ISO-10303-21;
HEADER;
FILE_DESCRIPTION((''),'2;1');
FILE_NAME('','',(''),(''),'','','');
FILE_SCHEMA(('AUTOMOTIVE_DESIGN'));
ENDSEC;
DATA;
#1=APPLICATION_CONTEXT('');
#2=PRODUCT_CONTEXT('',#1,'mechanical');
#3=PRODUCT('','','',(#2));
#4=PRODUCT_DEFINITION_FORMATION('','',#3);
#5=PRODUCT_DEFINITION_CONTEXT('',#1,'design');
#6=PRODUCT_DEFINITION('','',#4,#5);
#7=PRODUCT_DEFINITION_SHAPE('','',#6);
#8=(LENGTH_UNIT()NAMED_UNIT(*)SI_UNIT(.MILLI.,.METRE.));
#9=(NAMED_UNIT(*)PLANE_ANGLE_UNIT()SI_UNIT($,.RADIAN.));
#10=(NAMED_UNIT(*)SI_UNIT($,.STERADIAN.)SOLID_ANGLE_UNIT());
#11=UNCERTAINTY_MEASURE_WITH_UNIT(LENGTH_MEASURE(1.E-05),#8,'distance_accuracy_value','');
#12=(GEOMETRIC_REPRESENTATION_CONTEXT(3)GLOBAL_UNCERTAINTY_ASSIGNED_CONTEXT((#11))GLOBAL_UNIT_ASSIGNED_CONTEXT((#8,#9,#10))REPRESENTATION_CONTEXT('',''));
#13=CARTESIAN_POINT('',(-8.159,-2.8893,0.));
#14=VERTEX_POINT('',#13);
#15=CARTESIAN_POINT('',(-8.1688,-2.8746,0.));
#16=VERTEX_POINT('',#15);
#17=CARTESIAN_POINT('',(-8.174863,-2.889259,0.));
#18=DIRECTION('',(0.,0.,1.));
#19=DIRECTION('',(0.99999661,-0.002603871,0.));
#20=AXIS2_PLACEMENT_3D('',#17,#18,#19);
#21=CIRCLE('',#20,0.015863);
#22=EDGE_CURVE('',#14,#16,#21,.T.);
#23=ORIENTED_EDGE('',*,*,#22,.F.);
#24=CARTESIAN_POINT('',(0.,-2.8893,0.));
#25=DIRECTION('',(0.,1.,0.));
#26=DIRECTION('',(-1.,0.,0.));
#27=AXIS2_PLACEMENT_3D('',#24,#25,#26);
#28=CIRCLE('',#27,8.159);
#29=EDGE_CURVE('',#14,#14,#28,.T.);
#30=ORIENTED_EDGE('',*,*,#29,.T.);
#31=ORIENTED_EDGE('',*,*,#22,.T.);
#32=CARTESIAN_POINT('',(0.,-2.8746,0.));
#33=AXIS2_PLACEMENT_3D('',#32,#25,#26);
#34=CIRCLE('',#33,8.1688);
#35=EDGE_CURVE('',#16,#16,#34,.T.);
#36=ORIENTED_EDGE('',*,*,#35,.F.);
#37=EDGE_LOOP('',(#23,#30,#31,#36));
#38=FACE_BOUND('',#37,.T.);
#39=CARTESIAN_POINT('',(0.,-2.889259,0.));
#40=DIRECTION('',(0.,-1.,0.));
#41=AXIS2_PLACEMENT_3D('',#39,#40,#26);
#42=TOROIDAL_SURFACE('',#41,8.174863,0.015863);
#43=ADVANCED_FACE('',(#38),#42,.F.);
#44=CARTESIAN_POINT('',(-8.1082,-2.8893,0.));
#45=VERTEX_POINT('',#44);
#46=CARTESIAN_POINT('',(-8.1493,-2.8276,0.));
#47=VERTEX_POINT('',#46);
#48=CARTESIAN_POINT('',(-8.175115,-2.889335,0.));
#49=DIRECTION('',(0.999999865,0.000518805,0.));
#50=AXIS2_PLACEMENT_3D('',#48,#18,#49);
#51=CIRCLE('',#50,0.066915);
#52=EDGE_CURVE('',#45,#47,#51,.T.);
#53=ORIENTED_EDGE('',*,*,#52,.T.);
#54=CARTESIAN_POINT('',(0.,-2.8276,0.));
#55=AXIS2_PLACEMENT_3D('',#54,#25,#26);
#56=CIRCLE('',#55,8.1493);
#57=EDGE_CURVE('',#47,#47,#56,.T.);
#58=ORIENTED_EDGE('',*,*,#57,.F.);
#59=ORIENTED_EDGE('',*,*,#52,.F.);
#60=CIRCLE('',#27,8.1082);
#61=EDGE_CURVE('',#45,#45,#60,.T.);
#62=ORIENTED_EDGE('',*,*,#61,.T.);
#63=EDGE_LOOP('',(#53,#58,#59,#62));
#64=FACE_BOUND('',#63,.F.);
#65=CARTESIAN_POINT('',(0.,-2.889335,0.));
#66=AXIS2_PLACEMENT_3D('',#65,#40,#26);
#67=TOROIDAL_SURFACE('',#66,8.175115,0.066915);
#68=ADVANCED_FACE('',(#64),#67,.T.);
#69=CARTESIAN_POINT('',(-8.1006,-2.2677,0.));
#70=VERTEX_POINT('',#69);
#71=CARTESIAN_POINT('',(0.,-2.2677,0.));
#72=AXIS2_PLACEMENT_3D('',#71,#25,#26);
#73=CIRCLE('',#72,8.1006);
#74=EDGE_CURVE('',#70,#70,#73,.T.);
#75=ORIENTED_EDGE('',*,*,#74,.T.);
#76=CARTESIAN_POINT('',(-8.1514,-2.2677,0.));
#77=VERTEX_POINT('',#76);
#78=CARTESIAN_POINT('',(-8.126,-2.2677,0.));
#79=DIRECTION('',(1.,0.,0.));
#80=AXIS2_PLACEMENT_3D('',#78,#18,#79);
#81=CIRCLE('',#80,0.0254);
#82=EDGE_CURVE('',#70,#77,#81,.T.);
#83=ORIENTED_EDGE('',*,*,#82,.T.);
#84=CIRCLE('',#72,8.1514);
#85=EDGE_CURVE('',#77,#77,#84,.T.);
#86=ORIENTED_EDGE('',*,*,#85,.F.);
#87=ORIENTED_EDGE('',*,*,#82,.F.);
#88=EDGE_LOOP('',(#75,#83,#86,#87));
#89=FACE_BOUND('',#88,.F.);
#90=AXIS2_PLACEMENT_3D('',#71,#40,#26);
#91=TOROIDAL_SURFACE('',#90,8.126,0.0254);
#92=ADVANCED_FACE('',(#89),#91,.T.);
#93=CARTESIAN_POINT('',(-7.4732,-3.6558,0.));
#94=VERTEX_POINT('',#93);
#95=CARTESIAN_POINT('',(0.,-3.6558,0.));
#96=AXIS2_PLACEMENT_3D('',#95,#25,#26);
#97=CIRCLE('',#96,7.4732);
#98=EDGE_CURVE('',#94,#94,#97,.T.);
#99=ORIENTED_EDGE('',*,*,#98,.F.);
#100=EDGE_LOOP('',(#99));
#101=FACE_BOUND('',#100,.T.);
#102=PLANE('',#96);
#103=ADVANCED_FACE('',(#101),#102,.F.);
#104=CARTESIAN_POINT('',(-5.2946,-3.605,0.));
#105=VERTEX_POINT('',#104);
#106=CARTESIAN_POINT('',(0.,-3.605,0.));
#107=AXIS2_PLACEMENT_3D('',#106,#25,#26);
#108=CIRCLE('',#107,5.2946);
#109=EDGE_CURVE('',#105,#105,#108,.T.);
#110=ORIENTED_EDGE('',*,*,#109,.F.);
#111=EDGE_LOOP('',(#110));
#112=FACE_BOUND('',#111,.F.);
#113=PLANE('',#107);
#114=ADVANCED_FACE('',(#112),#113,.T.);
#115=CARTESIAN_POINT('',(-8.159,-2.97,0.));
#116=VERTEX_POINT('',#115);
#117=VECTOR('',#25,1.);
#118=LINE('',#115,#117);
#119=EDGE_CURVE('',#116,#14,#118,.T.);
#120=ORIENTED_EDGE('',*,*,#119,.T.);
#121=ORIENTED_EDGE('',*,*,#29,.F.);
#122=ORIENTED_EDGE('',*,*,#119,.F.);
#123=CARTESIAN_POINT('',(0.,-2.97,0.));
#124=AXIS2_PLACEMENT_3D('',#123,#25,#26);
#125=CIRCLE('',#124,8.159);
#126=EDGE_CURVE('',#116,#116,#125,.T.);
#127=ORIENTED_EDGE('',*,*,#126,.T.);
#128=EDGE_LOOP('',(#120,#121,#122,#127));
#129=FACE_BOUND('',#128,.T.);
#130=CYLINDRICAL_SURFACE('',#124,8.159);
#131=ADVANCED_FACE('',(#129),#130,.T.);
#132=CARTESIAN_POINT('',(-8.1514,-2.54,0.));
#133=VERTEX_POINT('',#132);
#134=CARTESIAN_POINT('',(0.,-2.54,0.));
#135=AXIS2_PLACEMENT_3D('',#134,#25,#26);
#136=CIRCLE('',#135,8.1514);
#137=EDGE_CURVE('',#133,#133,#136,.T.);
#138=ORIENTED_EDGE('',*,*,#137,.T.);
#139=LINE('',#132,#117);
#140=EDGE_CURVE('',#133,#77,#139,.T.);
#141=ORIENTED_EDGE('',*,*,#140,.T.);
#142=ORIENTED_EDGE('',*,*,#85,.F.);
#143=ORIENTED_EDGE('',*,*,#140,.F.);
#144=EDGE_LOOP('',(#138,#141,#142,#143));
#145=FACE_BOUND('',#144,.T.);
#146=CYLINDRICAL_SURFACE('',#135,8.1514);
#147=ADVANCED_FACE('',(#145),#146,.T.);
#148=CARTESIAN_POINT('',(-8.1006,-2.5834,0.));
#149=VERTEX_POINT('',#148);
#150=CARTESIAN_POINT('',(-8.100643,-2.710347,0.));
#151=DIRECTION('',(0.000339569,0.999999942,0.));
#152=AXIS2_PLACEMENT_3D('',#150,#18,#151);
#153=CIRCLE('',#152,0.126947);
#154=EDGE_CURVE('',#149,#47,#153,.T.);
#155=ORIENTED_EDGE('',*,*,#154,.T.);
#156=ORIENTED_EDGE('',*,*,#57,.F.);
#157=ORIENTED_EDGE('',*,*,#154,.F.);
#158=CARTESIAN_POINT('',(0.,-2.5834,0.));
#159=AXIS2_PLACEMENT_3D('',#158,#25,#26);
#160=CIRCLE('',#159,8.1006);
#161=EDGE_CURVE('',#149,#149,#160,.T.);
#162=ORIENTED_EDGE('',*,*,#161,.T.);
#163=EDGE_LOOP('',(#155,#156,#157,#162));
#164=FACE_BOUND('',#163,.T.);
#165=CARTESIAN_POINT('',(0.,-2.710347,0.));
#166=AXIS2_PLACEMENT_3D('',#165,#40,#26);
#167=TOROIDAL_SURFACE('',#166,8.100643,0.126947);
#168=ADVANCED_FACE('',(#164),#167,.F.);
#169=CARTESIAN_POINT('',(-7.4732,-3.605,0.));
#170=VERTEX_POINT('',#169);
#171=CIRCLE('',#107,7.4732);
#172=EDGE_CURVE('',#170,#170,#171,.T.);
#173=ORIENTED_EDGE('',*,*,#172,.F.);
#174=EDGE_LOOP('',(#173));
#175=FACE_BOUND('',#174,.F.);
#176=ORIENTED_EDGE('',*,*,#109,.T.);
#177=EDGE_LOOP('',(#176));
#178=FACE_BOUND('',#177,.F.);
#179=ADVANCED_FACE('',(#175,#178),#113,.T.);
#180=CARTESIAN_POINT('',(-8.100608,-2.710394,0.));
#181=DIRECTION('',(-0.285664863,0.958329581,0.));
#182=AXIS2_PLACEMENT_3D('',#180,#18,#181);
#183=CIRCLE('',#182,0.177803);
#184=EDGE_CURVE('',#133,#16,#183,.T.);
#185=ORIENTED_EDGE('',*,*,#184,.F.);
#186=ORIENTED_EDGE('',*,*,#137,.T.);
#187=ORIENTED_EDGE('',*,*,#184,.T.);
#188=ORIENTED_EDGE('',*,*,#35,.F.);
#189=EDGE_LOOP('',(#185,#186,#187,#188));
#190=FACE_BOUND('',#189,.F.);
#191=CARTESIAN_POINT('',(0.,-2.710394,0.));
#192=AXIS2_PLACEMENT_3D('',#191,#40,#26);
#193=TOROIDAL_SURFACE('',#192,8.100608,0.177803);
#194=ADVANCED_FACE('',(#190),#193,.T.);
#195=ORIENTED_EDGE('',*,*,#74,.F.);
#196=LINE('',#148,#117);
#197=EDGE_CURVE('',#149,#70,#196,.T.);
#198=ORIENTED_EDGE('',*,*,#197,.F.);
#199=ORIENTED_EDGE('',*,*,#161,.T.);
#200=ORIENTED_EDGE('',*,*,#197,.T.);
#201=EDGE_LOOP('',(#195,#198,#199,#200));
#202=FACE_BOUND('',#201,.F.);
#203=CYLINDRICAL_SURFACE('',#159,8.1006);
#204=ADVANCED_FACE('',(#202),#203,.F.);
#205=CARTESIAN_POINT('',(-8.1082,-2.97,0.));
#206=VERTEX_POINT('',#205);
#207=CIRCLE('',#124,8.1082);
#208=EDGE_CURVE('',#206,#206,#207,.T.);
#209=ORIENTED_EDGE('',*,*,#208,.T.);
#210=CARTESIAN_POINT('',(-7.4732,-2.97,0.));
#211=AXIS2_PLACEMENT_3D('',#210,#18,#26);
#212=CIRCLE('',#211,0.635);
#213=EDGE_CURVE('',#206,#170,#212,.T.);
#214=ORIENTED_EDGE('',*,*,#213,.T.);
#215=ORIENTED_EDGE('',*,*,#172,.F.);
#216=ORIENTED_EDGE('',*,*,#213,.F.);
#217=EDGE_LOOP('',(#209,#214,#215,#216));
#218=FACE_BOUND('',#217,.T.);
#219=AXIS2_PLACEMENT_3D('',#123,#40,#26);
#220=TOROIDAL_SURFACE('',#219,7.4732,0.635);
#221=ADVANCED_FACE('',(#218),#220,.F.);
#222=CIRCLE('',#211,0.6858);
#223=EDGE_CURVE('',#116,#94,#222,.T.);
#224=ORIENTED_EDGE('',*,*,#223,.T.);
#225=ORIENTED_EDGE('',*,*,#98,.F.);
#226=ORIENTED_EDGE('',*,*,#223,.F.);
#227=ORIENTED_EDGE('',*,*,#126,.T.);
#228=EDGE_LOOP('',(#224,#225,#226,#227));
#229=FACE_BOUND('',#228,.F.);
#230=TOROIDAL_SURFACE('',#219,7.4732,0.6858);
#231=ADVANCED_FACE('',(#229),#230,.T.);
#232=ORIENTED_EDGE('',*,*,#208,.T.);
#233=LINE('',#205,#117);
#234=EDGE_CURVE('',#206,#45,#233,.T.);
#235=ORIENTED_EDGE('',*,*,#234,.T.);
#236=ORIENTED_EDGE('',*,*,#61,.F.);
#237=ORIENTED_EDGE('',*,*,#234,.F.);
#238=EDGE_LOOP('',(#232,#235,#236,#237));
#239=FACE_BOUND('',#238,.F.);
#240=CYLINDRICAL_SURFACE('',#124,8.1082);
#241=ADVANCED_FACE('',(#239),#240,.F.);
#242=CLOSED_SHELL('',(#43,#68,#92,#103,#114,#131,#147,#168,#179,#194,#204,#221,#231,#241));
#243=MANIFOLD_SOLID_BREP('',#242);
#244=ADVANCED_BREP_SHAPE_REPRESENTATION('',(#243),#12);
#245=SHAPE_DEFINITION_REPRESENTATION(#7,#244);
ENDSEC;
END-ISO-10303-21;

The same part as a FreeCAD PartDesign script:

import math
import FreeCAD as App
import Part
import Sketcher

V = App.Vector
Q = App.Units.Quantity

doc = App.newDocument("Part")
params = doc.addObject("Spreadsheet::Sheet", "Params")
for row, (alias, value) in enumerate([
    ("sketch1_radius", "0.001 in"),
    ("sketch1_radius2", "0.025 in"),
    ("sketch1_height", "0.002 in"),
    ("sketch1_radius3", "0.005 in"),
    ("revolution_angle", "360 deg"),
], start=1):
    params.set(f"A{row}", alias)
    params.set(f"B{row}", "=" + value)
    params.setAlias(f"B{row}", alias)

body = doc.addObject("PartDesign::Body", "Body")

sketch1 = body.newObject("Sketcher::SketchObject", "Sketch")
sketch1.AttachmentSupport = (doc.getObject("XY_Plane"), [""])
sketch1.MapMode = "FlatFace"
sketch1.addGeometry([
    Part.ArcOfCircle(Part.Circle(V(-8.101, -2.71, 0), V(0, 0, 1), 0.127), math.radians(90), math.radians(247)),
    Part.LineSegment(V(-8.101, -2.583, 0), V(-8.101, -2.268, 0)),
    Part.ArcOfCircle(Part.Circle(V(-8.126, -2.268, 0), V(0, 0, 1), 0.025), math.radians(0), math.radians(180)),
    Part.LineSegment(V(-8.151, -2.268, 0), V(-8.151, -2.54, 0)),
    Part.ArcOfCircle(Part.Circle(V(-8.101, -2.71, 0), V(0, 0, 1), 0.178), math.radians(107), math.radians(247)),
    Part.ArcOfCircle(Part.Circle(V(-8.175, -2.889, 0), V(0, 0, 1), 0.016), math.radians(0), math.radians(67)),
    Part.LineSegment(V(-8.159, -2.889, 0), V(-8.159, -2.97, 0)),
    Part.ArcOfCircle(Part.Circle(V(-7.473, -2.97, 0), V(0, 0, 1), 0.686), math.radians(180), math.radians(270)),
    Part.LineSegment(V(-7.473, -3.656, 0), V(0, -3.656, 0)),
    Part.LineSegment(V(0, -3.656, 0), V(0, -3.605, 0)),
    Part.LineSegment(V(0, -3.605, 0), V(-7.473, -3.605, 0)),
    Part.ArcOfCircle(Part.Circle(V(-7.473, -2.97, 0), V(0, 0, 1), 0.635), math.radians(180), math.radians(270)),
    Part.LineSegment(V(-8.108, -2.97, 0), V(-8.108, -2.889, 0)),
    Part.ArcOfCircle(Part.Circle(V(-8.175, -2.889, 0), V(0, 0, 1), 0.067), math.radians(0), math.radians(67)),
], False)
sketch1.addConstraint([
    Sketcher.Constraint("Coincident", 0, 1, 1, 1),
    Sketcher.Constraint("Tangent", 1, 2, 2, 1),
    Sketcher.Constraint("Tangent", 2, 2, 3, 1),
    Sketcher.Constraint("Coincident", 3, 2, 4, 1),
    Sketcher.Constraint("Coincident", 4, 2, 5, 2),
    Sketcher.Constraint("Tangent", 5, 1, 6, 1),
    Sketcher.Constraint("Tangent", 6, 2, 7, 1),
    Sketcher.Constraint("Tangent", 7, 2, 8, 1),
    Sketcher.Constraint("Coincident", 8, 2, 9, 1),
    Sketcher.Constraint("Coincident", 9, 2, 10, 1),
    Sketcher.Constraint("Tangent", 10, 2, 11, 2),
    Sketcher.Constraint("Tangent", 11, 1, 12, 1),
    Sketcher.Constraint("Tangent", 12, 2, 13, 1),
    Sketcher.Constraint("Coincident", 13, 2, 0, 2),
    Sketcher.Constraint("Vertical", 1),
    Sketcher.Constraint("Vertical", 3),
    Sketcher.Constraint("Vertical", 6),
    Sketcher.Constraint("Horizontal", 8),
    Sketcher.Constraint("Vertical", 9),
    Sketcher.Constraint("Horizontal", 10),
    Sketcher.Constraint("Vertical", 12),
    Sketcher.Constraint("Coincident", 4, 3, 0, 3),
    Sketcher.Constraint("Coincident", 11, 3, 7, 3),
    Sketcher.Constraint("Coincident", 13, 3, 5, 3),
    Sketcher.Constraint("PointOnObject", 8, 2, -2),
    Sketcher.Constraint("Vertical", 4, 3, 0, 1),
    Sketcher.Constraint("Radius", 2, Q("0.001 in")),
    Sketcher.Constraint("Radius", 11, Q("0.025 in")),
    Sketcher.Constraint("DistanceY", 9, 1, 9, 2, Q("0.002 in")),
    Sketcher.Constraint("Radius", 0, Q("0.005 in")),
    Sketcher.Constraint("DistanceY", 3, 2, -1, 1, Q("0.1 in")),
    Sketcher.Constraint("Radius", 5, Q("0.016 mm")),
    Sketcher.Constraint("DistanceX", 5, 3, 13, 2, Q("0.001 in")),
    Sketcher.Constraint("DistanceX", 8, 1, 8, 2, Q("7.4732 mm")),
    Sketcher.Constraint("DistanceY", 1, 1, 1, 2, Q("0.3157 mm")),
    Sketcher.Constraint("DistanceY", 6, 2, 6, 1, Q("0.0807 mm")),
    Sketcher.Constraint("DistanceX", 4, 2, -1, 1, Q("0.3216 in")),
    Sketcher.Constraint("DistanceX", 0, 3, 7, 3, Q("0.0247 in")),
])
sketch1.setExpression("Constraints[26]", "Params.sketch1_radius")
sketch1.setExpression("Constraints[27]", "Params.sketch1_radius2")
sketch1.setExpression("Constraints[28]", "Params.sketch1_height")
sketch1.setExpression("Constraints[29]", "Params.sketch1_radius3")
revolution = body.newObject("PartDesign::Revolution", "Revolution")
revolution.Profile = sketch1
revolution.ReferenceAxis = (sketch1, ["V_Axis"])
revolution.setExpression("Angle", "Params.revolution_angle")

doc.recompute()
